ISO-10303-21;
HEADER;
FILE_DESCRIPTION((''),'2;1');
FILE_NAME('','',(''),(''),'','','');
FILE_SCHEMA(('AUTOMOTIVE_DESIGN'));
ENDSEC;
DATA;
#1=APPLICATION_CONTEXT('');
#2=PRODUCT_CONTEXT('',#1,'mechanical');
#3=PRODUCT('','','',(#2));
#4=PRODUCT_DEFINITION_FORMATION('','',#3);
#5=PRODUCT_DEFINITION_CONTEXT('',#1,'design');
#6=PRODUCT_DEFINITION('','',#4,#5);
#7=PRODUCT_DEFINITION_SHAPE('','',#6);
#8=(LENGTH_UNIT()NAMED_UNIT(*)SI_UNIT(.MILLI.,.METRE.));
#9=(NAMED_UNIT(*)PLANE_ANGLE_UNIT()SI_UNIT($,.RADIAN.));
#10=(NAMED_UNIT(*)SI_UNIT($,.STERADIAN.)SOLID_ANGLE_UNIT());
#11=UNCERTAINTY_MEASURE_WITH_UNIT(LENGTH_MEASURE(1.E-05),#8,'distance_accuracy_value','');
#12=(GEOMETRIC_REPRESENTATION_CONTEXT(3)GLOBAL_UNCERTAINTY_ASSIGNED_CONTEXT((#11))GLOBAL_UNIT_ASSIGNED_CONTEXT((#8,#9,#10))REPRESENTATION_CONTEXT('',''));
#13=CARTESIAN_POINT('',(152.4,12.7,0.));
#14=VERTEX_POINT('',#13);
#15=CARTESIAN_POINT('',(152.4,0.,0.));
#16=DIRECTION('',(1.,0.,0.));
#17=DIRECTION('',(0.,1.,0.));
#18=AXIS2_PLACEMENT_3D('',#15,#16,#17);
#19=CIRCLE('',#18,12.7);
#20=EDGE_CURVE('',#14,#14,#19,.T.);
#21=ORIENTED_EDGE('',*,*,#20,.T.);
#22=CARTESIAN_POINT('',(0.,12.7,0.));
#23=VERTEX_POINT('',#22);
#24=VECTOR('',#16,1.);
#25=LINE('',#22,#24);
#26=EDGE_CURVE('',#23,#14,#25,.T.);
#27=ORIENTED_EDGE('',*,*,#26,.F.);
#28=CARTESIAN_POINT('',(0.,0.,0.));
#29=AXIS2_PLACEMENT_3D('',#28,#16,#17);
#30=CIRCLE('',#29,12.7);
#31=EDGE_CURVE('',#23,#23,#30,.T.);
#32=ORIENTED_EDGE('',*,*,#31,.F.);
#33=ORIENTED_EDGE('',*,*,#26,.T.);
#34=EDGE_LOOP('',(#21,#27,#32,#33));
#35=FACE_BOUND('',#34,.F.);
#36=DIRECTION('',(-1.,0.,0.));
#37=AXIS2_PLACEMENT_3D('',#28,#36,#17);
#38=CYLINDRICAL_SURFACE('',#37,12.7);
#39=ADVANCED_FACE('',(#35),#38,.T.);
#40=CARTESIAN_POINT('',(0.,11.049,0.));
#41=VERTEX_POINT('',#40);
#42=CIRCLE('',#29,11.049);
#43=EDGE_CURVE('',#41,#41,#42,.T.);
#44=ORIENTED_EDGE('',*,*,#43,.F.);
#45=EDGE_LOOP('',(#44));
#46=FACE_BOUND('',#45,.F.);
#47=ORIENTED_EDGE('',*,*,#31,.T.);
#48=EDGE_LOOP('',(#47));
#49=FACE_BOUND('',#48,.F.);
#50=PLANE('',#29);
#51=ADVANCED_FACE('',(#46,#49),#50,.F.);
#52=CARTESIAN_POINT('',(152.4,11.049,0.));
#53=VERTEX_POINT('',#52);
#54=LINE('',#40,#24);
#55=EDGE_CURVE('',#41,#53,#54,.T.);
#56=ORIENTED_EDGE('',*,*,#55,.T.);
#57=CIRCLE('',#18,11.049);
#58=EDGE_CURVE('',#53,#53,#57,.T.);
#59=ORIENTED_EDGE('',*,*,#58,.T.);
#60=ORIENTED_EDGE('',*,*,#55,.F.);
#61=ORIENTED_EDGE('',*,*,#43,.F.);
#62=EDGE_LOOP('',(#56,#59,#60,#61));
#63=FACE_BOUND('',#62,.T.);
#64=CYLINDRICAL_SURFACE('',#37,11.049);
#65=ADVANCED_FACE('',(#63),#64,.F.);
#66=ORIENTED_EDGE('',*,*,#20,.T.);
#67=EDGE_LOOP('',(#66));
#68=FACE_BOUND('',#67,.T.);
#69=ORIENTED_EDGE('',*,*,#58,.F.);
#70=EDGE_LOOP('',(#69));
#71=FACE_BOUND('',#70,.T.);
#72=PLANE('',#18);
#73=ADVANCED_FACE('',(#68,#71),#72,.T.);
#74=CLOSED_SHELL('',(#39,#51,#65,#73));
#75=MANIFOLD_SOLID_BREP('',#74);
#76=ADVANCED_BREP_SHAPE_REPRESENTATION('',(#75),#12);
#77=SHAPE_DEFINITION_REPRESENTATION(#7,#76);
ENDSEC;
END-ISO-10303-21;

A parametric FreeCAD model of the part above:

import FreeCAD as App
import Part
import Sketcher
Q = App.Units.Quantity

doc = App.newDocument("Part")
body = doc.addObject("PartDesign::Body", "Body")

sketch1 = doc.addObject("Sketcher::SketchObject", "Sketch")
body.addObject(sketch1)
sketch1.AttachmentSupport = (doc.YZ_Plane, [""])
sketch1.MapMode = "FlatFace"
sketch1.addGeometry([
    Part.Circle(App.Vector(0, 0, 0), App.Vector(0, 0, 1), 12.7),
    Part.Circle(App.Vector(0, 0, 0), App.Vector(0, 0, 1), 11.049),
], False)
sketch1.addConstraint([
    Sketcher.Constraint("Coincident", 0, 3, -1, 1),
    Sketcher.Constraint("Coincident", 1, 3, -1, 1),
    Sketcher.Constraint("Diameter", 0, Q("1 in")),
    Sketcher.Constraint("Diameter", 1, Q("0.87 in")),
])
pad1 = doc.addObject("PartDesign::Pad", "Pad")
body.addObject(pad1)
pad1.Profile = sketch1
pad1.Length = Q("6 in")

doc.recompute()
